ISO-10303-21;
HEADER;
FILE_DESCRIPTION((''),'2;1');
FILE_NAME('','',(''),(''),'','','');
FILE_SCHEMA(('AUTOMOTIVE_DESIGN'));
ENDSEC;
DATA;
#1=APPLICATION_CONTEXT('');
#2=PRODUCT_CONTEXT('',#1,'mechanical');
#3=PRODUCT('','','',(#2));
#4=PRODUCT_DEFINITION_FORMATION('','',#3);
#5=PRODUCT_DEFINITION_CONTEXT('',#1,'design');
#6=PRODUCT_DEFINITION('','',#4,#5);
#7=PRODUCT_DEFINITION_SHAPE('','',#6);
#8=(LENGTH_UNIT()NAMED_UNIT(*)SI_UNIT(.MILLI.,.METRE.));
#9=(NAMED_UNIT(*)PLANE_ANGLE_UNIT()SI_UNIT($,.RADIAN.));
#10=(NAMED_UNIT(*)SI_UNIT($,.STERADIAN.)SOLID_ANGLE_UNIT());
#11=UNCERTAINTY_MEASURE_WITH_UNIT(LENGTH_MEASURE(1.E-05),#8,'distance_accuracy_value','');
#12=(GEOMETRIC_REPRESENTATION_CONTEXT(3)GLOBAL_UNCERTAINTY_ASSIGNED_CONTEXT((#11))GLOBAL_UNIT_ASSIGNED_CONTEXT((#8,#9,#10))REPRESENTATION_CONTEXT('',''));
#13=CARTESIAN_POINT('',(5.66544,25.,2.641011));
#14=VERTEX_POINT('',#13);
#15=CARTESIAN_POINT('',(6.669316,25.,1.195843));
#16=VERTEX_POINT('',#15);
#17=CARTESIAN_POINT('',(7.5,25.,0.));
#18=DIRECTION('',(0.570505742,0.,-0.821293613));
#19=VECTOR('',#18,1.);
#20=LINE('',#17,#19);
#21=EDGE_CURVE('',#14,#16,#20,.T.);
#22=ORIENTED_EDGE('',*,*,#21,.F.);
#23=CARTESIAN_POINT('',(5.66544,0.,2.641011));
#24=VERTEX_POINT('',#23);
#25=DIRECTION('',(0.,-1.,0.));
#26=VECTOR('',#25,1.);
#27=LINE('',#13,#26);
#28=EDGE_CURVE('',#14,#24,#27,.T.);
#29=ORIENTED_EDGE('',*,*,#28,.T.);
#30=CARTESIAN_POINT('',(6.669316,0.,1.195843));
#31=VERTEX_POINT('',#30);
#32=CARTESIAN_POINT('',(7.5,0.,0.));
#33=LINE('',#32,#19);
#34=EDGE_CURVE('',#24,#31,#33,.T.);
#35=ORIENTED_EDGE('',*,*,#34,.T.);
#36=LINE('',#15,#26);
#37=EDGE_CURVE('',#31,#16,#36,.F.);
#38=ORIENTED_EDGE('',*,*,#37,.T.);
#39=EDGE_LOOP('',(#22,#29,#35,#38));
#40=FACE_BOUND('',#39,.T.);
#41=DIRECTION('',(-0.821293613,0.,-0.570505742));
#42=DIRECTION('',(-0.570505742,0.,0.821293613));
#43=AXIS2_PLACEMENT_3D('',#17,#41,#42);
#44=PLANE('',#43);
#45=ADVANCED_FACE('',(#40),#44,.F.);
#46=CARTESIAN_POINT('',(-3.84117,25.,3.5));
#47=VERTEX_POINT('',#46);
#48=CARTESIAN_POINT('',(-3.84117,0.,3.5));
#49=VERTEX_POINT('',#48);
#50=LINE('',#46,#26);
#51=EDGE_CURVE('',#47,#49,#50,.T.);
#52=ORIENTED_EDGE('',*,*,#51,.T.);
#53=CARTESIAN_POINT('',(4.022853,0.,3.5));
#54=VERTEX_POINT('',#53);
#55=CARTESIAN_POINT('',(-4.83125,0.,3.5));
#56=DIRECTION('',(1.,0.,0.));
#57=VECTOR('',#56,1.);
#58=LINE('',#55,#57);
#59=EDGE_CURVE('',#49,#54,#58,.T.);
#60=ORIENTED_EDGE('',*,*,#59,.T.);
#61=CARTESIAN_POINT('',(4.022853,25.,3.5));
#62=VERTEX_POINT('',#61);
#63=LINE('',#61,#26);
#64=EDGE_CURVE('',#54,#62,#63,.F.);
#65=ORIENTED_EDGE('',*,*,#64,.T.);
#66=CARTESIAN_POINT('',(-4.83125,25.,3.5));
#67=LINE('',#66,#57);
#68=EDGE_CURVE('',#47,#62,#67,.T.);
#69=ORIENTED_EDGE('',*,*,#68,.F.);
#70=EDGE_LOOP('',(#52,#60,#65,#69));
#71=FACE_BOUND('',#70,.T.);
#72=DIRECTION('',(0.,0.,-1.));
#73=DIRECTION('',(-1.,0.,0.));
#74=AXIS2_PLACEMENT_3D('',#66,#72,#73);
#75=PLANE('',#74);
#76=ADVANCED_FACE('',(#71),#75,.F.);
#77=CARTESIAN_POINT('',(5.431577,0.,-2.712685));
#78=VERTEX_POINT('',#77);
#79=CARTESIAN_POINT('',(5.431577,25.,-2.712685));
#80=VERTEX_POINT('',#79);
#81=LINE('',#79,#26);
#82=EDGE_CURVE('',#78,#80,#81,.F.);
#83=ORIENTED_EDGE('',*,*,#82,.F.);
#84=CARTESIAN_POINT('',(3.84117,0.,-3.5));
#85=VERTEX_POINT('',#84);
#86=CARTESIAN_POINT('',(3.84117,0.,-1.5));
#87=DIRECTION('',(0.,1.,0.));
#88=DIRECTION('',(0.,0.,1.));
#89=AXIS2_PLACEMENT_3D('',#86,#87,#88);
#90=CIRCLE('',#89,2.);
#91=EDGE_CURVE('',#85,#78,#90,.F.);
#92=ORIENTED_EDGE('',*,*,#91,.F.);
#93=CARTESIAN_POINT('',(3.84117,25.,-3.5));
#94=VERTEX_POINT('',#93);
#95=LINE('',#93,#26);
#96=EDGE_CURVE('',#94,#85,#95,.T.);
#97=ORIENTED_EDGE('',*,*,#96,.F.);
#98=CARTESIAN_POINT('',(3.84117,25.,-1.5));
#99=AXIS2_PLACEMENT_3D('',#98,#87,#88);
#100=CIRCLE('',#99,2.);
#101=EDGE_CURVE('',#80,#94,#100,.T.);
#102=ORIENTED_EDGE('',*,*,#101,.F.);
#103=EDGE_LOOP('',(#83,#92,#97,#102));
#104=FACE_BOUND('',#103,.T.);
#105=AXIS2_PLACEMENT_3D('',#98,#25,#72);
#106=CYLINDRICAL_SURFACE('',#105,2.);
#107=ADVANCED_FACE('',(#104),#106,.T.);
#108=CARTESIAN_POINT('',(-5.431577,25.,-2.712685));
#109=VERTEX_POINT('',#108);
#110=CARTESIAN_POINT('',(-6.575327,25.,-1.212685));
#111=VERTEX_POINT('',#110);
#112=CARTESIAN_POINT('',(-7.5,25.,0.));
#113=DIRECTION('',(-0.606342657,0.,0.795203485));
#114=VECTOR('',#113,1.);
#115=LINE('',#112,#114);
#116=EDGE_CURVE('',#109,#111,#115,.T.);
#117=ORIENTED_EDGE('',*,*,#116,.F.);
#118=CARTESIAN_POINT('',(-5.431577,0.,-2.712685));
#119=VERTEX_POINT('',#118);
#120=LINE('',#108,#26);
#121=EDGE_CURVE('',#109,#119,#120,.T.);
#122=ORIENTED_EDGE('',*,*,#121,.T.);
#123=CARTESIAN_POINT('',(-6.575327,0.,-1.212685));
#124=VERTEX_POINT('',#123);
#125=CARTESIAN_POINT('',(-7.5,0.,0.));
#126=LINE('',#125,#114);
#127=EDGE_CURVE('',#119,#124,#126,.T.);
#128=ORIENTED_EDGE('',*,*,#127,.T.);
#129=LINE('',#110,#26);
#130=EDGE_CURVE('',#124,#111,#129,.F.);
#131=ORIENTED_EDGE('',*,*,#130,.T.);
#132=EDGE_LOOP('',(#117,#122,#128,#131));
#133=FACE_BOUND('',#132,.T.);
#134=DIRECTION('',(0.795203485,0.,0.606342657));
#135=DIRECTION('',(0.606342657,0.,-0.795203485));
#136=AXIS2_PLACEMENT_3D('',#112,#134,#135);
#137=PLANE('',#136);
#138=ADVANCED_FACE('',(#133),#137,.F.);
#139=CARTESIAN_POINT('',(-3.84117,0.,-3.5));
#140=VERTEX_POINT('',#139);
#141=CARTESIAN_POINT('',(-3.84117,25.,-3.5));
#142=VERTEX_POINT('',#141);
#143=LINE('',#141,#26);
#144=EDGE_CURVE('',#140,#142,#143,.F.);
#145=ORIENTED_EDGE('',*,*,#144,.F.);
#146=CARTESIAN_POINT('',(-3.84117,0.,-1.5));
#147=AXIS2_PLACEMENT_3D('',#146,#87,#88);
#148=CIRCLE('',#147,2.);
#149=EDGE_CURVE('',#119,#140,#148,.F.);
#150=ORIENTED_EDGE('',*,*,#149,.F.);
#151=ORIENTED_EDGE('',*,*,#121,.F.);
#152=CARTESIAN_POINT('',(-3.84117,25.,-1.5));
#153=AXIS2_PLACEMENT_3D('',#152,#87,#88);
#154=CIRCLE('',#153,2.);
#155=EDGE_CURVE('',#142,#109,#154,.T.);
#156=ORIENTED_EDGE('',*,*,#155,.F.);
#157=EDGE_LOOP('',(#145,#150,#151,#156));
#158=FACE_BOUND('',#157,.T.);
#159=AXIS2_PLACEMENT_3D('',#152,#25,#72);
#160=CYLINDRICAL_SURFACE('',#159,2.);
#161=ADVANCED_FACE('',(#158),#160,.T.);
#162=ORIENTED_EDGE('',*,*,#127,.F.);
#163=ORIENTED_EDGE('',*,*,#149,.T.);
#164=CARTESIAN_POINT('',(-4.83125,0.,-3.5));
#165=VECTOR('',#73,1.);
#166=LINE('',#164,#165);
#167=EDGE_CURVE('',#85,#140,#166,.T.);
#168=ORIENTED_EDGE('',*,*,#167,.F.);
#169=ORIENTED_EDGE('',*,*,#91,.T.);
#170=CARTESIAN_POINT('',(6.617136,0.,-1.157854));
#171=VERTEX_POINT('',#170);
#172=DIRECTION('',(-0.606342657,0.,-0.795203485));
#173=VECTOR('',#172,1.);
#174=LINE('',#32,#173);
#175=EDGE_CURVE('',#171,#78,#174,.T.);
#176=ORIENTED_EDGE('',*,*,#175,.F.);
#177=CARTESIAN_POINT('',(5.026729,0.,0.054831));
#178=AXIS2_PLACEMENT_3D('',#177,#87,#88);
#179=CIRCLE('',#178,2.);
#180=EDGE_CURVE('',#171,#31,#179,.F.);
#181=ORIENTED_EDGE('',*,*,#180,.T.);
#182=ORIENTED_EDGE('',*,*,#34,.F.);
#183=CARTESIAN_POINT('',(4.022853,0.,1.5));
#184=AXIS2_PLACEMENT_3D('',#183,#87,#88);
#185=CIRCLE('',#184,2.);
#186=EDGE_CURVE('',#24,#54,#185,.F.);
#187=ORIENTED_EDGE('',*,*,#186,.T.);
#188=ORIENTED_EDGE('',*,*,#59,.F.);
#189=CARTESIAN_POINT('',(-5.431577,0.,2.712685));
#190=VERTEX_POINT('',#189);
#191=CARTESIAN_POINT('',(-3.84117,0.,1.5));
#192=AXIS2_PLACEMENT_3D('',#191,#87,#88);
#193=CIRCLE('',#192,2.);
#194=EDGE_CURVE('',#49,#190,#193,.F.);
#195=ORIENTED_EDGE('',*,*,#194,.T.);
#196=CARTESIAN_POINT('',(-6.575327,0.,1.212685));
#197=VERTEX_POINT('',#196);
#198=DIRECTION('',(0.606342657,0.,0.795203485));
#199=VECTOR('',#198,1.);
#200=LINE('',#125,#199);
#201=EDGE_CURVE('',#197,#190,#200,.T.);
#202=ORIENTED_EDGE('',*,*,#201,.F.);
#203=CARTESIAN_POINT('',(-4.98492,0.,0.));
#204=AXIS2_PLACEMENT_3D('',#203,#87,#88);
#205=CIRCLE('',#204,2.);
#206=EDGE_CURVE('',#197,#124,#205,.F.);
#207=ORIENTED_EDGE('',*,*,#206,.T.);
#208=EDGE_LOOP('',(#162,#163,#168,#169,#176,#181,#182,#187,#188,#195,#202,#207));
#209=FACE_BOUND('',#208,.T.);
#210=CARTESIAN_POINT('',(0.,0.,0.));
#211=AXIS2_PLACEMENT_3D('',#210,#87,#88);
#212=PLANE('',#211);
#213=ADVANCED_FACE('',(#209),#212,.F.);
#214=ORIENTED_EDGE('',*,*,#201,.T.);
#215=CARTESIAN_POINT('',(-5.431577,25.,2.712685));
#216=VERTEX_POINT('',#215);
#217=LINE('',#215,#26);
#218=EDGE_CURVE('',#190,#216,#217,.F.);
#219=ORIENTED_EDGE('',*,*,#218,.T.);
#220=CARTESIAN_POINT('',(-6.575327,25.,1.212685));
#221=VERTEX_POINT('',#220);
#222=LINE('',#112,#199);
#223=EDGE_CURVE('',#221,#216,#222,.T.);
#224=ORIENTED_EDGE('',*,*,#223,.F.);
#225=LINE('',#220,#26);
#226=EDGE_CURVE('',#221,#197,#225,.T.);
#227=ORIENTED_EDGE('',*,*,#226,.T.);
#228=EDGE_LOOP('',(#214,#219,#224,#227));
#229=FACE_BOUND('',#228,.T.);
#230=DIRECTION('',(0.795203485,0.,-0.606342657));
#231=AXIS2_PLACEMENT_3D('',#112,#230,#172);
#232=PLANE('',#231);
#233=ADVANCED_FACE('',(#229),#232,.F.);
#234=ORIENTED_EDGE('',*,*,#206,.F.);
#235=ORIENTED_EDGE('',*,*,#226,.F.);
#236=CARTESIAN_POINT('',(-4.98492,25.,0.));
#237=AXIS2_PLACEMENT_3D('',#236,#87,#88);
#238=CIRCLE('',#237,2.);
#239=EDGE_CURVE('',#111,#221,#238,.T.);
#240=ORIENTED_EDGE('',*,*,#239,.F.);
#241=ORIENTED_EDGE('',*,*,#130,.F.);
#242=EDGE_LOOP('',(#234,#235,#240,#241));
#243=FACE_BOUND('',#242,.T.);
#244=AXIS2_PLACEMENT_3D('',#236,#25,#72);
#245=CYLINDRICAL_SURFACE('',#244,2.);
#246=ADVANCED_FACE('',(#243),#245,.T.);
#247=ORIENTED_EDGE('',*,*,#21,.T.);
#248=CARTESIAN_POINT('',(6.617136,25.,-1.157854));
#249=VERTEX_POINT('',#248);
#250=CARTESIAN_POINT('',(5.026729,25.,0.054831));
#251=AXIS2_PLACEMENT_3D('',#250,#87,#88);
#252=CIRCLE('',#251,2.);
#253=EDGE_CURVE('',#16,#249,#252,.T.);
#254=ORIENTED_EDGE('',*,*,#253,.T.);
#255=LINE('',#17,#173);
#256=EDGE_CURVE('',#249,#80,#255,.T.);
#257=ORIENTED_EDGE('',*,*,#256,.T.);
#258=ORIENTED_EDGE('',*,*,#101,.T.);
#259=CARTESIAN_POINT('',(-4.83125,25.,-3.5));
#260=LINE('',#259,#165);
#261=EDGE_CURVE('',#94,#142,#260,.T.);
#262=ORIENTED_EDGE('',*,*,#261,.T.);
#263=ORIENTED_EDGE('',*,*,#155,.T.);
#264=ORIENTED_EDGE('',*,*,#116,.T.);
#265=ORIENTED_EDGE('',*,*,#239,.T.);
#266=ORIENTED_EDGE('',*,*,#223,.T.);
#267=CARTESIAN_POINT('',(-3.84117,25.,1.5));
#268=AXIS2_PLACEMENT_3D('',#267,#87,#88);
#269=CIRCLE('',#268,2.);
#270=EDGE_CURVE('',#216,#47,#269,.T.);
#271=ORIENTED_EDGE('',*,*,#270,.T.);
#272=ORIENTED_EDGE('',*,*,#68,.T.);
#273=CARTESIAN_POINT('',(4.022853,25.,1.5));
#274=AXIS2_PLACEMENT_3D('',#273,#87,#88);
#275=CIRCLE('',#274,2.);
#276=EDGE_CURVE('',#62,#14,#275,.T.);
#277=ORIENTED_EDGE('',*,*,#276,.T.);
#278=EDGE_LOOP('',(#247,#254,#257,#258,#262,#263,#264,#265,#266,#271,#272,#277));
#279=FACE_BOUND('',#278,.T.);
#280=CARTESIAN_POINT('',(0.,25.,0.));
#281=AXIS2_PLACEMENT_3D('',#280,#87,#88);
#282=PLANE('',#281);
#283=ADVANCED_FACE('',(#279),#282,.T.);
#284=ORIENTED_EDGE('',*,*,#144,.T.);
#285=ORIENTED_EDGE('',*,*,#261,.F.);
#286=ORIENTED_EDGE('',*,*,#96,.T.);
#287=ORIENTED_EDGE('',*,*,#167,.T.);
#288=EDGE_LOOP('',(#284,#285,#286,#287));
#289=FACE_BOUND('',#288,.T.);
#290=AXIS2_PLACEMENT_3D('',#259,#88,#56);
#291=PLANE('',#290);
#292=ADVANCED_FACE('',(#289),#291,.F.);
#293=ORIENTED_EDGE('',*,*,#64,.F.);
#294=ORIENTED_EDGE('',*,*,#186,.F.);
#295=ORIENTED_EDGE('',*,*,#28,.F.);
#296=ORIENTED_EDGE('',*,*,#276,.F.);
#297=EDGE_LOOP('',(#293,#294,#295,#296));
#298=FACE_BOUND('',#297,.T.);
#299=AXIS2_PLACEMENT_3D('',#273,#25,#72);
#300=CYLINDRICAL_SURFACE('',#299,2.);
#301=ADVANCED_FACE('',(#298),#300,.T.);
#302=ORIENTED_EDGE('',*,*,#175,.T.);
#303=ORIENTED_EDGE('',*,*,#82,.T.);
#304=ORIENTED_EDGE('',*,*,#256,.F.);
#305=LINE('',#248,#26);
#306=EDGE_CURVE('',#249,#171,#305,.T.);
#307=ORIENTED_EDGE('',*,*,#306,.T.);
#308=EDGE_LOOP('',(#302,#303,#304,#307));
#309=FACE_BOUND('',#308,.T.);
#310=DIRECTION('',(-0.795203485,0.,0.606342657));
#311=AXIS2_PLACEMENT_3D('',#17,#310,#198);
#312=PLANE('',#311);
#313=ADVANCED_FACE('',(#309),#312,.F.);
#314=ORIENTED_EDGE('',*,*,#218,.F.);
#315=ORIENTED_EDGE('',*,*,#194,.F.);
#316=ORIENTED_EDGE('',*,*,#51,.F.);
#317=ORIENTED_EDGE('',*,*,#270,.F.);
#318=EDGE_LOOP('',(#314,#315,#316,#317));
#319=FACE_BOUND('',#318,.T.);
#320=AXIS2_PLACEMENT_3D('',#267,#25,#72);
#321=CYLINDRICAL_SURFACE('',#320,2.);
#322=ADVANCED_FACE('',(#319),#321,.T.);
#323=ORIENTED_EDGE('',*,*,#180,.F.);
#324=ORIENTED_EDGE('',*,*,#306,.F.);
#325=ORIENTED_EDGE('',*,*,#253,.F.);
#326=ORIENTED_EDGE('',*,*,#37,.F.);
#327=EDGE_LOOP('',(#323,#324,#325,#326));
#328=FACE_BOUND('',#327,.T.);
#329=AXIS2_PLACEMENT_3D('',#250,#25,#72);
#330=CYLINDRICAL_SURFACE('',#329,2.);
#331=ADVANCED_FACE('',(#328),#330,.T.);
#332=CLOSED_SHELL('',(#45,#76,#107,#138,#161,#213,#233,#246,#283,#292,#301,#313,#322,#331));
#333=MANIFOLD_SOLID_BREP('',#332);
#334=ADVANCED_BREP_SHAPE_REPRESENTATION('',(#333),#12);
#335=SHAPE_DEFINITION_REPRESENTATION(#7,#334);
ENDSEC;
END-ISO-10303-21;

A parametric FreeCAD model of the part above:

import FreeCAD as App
import Part
import Sketcher

V = App.Vector


def edges_at(feature, points):
    """Names of the edges that pass closest to the given points."""
    edges = feature.Shape.Edges
    near = lambda p: min(range(len(edges)), key=lambda i: edges[i].distToShape(Part.Vertex(*p))[0])
    return sorted({f"Edge{near(p) + 1}" for p in points})

doc = App.newDocument("Part")
params = doc.addObject("Spreadsheet::Sheet", "Params")
for row, (alias, value) in enumerate([
    ("sketch1_width", "9.9 mm"),
    ("pad1_length", "25 mm"),
    ("fillet_radius", "2 mm"),
], start=1):
    params.set(f"A{row}", alias)
    params.set(f"B{row}", "=" + value)
    params.setAlias(f"B{row}", alias)

body = doc.addObject("PartDesign::Body", "Body")

# Sketch on XZ plane
sketch1 = body.newObject("Sketcher::SketchObject", "Sketch")
sketch1.AttachmentSupport = (doc.getObject("XZ_Plane"), [""])
sketch1.MapMode = "FlatFace"
sketch1.addGeometry(Part.LineSegment(V(-4.8, -3.5, 0), V(-7.5, 0, 0)), False)
sketch1.addGeometry(Part.LineSegment(V(-7.5, 0, 0), V(-4.8, 3.5, 0)), False)
sketch1.addGeometry(Part.LineSegment(V(-4.8, 3.5, 0), V(5.1, 3.5, 0)), False)
sketch1.addGeometry(Part.LineSegment(V(5.1, 3.5, 0), V(7.5, 0, 0)), False)
sketch1.addGeometry(Part.LineSegment(V(7.5, 0, 0), V(4.8, -3.5, 0)), False)
sketch1.addGeometry(Part.LineSegment(V(4.8, -3.5, 0), V(-4.8, -3.5, 0)), False)
sketch1.addConstraint(Sketcher.Constraint("Coincident", 0, 2, 1, 1))
sketch1.addConstraint(Sketcher.Constraint("Coincident", 1, 2, 2, 1))
sketch1.addConstraint(Sketcher.Constraint("Coincident", 2, 2, 3, 1))
sketch1.addConstraint(Sketcher.Constraint("Coincident", 3, 2, 4, 1))
sketch1.addConstraint(Sketcher.Constraint("Coincident", 4, 2, 5, 1))
sketch1.addConstraint(Sketcher.Constraint("Coincident", 5, 2, 0, 1))
sketch1.addConstraint(Sketcher.Constraint("Horizontal", 2))
sketch1.addConstraint(Sketcher.Constraint("Horizontal", 5))
sketch1.addConstraint(Sketcher.Constraint("Symmetric", 0, 2, 3, 2, -1, 1))
sketch1.addConstraint(Sketcher.Constraint("Symmetric", 1, 2, 4, 2, -1, 1))
sketch1.addConstraint(Sketcher.Constraint("PointOnObject", 0, 2, -1))
sketch1.addConstraint(Sketcher.Constraint("Vertical", 1, 2, 5, 2))
sketch1.addConstraint(Sketcher.Constraint("DistanceX", 2, 1, 2, 2, 9.9))
sketch1.addConstraint(Sketcher.Constraint("DistanceX", 0, 2, 3, 2, 15.0))
sketch1.addConstraint(Sketcher.Constraint("DistanceY", 4, 2, 2, 2, 7.0))
sketch1.addConstraint(Sketcher.Constraint("DistanceX", 5, 2, 5, 1, 9.6625))
sketch1.setExpression("Constraints[12]", "Params.sketch1_width")
pad1 = body.newObject("PartDesign::Pad", "Pad")
pad1.Profile = sketch1
pad1.setExpression("Length", "Params.pad1_length")
pad1.Reversed = True
doc.recompute()

fillet = body.newObject("PartDesign::Fillet", "Fillet")
fillet.Base = (pad1, edges_at(pad1, [
    (-7.5, 12.5, 0),
    (-4.831, 12.5, -3.5),
    (4.831, 12.5, -3.5),
    (7.5, 12.5, 0),
    (5.069, 12.5, 3.5),
    (-4.831, 12.5, 3.5),
]))
fillet.setExpression("Radius", "Params.fillet_radius")

doc.recompute()
